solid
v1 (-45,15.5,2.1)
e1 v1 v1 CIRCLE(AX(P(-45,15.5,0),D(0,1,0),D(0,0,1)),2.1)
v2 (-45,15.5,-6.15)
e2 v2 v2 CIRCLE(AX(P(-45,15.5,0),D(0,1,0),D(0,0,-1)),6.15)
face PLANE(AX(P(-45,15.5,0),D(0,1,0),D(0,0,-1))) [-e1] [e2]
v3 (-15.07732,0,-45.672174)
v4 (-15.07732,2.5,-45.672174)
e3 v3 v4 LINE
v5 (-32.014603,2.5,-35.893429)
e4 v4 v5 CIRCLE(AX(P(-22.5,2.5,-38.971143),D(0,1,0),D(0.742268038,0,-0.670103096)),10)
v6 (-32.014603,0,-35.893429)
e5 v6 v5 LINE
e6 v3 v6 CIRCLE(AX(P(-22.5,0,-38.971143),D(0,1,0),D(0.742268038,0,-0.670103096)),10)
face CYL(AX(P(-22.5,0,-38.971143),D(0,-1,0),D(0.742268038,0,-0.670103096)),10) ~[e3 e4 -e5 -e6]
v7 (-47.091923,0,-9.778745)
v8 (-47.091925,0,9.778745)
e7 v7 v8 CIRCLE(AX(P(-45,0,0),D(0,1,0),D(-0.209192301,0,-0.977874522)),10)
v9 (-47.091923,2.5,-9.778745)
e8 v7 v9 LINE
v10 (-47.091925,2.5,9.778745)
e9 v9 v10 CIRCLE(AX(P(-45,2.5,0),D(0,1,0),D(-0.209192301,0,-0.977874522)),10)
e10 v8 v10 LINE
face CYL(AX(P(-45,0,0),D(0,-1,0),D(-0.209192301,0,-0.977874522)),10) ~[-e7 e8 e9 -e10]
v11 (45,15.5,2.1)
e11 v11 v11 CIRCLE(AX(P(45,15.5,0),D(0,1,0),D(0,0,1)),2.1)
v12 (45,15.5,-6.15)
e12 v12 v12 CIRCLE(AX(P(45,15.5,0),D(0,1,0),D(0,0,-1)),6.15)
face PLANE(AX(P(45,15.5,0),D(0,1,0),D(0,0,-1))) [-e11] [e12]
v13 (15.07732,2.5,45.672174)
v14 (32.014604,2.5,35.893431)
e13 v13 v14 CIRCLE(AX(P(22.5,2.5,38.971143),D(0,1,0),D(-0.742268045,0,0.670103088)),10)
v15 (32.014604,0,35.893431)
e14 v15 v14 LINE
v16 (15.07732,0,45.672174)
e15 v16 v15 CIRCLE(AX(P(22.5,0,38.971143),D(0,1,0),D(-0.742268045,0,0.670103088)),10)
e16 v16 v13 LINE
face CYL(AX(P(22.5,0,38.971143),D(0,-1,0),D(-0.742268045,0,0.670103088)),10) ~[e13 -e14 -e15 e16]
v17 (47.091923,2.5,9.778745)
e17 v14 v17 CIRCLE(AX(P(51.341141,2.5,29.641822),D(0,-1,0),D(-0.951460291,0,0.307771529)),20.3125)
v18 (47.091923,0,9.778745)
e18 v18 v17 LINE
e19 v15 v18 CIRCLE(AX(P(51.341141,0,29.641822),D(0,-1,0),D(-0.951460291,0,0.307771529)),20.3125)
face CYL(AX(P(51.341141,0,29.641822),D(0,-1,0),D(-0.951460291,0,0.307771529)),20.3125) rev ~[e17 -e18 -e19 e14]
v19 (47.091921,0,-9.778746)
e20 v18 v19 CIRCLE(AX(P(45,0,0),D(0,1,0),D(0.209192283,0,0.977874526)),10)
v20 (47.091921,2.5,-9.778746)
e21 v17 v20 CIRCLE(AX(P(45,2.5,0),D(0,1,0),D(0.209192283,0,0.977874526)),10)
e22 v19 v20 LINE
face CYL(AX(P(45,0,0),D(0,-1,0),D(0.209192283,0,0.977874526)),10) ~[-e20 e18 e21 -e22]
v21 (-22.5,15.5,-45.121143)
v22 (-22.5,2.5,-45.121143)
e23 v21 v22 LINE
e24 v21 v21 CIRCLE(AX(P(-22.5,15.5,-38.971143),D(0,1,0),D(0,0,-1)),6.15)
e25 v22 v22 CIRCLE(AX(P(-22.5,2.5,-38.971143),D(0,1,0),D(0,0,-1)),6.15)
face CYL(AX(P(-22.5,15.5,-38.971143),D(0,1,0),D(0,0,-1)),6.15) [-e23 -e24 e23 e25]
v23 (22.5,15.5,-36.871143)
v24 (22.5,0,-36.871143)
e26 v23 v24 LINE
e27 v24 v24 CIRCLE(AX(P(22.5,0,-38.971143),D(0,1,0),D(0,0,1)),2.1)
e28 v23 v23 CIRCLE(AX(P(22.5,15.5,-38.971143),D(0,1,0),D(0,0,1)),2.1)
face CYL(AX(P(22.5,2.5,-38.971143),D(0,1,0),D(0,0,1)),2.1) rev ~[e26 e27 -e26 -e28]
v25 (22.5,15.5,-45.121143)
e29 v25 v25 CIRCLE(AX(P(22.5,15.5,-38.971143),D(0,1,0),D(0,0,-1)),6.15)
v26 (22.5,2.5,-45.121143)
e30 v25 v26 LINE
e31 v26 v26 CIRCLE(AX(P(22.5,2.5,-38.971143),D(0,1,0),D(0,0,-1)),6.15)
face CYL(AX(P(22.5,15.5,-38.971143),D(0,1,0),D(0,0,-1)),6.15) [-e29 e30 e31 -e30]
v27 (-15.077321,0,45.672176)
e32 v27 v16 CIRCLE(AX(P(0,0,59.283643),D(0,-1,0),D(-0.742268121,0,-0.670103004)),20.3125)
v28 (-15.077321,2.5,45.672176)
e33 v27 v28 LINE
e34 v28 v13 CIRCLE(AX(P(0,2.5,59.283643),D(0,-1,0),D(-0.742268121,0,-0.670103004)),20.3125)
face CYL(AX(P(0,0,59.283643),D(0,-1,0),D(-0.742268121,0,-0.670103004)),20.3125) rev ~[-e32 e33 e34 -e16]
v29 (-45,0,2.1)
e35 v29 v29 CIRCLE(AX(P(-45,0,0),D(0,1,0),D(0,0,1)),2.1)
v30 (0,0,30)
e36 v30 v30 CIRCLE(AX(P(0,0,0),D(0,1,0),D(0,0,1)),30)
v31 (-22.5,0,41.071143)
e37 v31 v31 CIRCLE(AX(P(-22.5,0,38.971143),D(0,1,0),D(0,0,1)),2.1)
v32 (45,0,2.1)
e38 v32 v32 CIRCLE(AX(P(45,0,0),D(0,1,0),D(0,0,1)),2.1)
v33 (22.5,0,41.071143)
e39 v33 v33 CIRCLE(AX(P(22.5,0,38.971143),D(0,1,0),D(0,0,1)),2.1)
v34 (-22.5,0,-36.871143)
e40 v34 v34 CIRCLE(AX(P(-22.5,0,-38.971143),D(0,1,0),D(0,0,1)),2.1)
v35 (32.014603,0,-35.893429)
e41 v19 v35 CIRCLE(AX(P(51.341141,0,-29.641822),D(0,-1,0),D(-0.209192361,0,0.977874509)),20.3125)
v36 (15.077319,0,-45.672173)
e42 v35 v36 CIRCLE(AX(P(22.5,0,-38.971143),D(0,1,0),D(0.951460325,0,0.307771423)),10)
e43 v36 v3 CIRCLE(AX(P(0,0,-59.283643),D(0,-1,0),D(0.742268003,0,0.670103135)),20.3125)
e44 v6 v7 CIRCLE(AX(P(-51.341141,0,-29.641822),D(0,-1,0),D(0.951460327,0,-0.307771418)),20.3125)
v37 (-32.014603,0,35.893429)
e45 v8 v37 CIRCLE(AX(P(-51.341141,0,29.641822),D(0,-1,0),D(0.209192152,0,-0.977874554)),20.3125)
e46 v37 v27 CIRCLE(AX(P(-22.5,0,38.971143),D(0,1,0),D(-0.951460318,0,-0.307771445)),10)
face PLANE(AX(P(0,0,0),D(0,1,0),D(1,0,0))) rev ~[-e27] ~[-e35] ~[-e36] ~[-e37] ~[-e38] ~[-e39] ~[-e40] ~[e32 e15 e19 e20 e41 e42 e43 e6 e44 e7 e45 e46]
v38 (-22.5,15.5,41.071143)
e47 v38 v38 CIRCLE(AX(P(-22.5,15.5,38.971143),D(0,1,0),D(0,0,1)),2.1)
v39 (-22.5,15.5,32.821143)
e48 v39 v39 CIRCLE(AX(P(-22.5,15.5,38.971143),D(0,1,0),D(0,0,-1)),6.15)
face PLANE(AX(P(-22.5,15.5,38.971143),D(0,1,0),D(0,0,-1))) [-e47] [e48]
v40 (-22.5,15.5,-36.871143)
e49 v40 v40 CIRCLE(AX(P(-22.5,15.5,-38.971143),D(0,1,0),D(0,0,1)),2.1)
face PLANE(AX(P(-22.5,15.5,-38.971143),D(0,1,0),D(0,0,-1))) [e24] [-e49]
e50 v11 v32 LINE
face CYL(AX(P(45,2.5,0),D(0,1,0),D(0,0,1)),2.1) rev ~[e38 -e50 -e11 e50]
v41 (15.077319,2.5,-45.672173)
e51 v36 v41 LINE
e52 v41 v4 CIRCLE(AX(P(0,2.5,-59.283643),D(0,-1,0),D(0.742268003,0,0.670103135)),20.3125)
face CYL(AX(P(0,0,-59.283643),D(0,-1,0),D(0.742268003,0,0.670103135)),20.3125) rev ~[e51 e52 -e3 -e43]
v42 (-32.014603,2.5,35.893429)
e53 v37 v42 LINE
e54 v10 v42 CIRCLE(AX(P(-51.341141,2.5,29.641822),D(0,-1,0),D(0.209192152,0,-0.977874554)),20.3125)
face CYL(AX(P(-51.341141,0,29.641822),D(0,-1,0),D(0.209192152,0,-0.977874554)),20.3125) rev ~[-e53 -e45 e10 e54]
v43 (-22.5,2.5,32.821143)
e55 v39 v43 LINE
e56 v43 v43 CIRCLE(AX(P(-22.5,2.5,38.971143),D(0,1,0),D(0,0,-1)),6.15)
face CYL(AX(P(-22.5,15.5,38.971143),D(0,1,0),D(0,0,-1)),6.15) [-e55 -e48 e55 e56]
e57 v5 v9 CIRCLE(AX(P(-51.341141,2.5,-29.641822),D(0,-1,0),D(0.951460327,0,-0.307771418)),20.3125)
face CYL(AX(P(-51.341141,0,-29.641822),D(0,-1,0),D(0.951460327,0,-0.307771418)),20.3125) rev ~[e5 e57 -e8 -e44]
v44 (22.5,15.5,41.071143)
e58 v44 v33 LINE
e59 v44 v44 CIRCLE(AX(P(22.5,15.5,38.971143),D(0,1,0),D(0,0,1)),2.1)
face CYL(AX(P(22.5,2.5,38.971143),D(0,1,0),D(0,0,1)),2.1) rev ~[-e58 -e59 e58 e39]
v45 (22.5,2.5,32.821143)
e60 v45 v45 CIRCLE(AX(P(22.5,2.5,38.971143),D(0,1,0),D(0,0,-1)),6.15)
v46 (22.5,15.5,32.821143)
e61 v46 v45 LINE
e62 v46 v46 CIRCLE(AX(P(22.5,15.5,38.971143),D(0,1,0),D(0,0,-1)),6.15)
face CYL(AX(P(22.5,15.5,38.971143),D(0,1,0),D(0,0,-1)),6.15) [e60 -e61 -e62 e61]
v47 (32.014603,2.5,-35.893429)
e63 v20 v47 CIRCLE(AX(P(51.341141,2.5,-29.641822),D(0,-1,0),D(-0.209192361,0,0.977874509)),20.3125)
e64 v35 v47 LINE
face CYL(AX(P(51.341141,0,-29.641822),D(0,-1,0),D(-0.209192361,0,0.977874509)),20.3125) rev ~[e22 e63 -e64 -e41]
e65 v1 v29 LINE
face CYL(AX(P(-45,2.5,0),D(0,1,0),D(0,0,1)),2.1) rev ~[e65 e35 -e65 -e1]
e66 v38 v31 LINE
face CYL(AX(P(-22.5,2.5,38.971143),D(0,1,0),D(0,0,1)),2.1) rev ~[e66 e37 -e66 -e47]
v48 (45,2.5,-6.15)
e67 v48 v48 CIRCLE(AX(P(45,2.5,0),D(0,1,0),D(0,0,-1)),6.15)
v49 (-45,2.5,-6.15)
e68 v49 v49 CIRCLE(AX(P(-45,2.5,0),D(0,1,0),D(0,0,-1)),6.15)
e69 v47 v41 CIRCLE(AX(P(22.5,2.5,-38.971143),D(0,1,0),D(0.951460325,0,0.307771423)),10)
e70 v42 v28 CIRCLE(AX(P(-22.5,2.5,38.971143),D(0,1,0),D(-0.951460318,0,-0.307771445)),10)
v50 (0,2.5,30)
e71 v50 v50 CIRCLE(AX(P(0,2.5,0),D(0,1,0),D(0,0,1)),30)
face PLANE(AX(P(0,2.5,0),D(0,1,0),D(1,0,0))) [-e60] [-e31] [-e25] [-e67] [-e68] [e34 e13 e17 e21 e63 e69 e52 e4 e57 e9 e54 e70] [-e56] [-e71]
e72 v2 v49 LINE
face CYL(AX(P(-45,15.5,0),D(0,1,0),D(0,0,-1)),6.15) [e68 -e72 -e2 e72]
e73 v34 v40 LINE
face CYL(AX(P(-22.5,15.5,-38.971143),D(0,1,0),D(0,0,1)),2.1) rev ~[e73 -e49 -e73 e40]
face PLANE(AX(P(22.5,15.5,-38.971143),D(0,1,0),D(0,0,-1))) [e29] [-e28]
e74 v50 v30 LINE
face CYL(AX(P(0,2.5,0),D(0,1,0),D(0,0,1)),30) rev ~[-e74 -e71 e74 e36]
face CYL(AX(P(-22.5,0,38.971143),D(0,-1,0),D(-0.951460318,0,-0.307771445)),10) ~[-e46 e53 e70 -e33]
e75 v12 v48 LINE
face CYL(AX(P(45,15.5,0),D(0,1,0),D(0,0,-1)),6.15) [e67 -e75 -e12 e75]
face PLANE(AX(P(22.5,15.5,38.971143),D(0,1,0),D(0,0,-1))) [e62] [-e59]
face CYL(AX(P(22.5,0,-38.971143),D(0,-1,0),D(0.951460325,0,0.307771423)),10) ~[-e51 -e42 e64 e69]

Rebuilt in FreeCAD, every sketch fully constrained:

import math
import FreeCAD as App
import Part
import Sketcher

V = App.Vector
Q = App.Units.Quantity

doc = App.newDocument("Part")
body = doc.addObject("PartDesign::Body", "Body")

# Sketch on XZ plane
sketch1 = body.newObject("Sketcher::SketchObject", "Sketch")
sketch1.AttachmentSupport = (doc.getObject("XZ_Plane"), [""])
sketch1.MapMode = "FlatFace"
sketch1.addGeometry(Part.ArcOfCircle(Part.Circle(V(51, 30, 0), V(0, 0, 1), 20), math.radians(162), math.radians(258)), False)
sketch1.addGeometry(Part.ArcOfCircle(Part.Circle(V(45, 0, 0), V(0, 0, 1), 10), math.radians(-78), math.radians(78)), False)
sketch1.addGeometry(Part.ArcOfCircle(Part.Circle(V(51, -30, 0), V(0, 0, 1), 20), math.radians(102), math.radians(198)), False)
sketch1.addGeometry(Part.ArcOfCircle(Part.Circle(V(22, -39, 0), V(0, 0, 1), 10), math.radians(-138), math.radians(18)), False)
sketch1.addGeometry(Part.ArcOfCircle(Part.Circle(V(0, -59, 0), V(0, 0, 1), 20), math.radians(42), math.radians(138)), False)
sketch1.addGeometry(Part.ArcOfCircle(Part.Circle(V(-22, -39, 0), V(0, 0, 1), 10), math.radians(162), math.radians(318)), False)
sketch1.addGeometry(Part.ArcOfCircle(Part.Circle(V(-51, -30, 0), V(0, 0, 1), 20), math.radians(-18), math.radians(78)), False)
sketch1.addGeometry(Part.ArcOfCircle(Part.Circle(V(-45, 0, 0), V(0, 0, 1), 10), math.radians(102), math.radians(258)), False)
sketch1.addGeometry(Part.ArcOfCircle(Part.Circle(V(-51, 30, 0), V(0, 0, 1), 20), math.radians(-78), math.radians(18)), False)
sketch1.addGeometry(Part.ArcOfCircle(Part.Circle(V(-22, 39, 0), V(0, 0, 1), 10), math.radians(42), math.radians(198)), False)
sketch1.addGeometry(Part.ArcOfCircle(Part.Circle(V(0, 59, 0), V(0, 0, 1), 20), math.radians(-138), math.radians(-42)), False)
sketch1.addGeometry(Part.ArcOfCircle(Part.Circle(V(22, 39, 0), V(0, 0, 1), 10), math.radians(-18), math.radians(138)), False)
sketch1.addConstraint(Sketcher.Constraint("Tangent", 0, 2, 1, 2))
sketch1.addConstraint(Sketcher.Constraint("Tangent", 1, 1, 2, 1))
sketch1.addConstraint(Sketcher.Constraint("Tangent", 2, 2, 3, 2))
sketch1.addConstraint(Sketcher.Constraint("Tangent", 3, 1, 4, 1))
sketch1.addConstraint(Sketcher.Constraint("Tangent", 4, 2, 5, 2))
sketch1.addConstraint(Sketcher.Constraint("Tangent", 5, 1, 6, 1))
sketch1.addConstraint(Sketcher.Constraint("Tangent", 6, 2, 7, 2))
sketch1.addConstraint(Sketcher.Constraint("Tangent", 7, 1, 8, 1))
sketch1.addConstraint(Sketcher.Constraint("Tangent", 8, 2, 9, 2))
sketch1.addConstraint(Sketcher.Constraint("Tangent", 9, 1, 10, 1))
sketch1.addConstraint(Sketcher.Constraint("Tangent", 10, 2, 11, 2))
sketch1.addConstraint(Sketcher.Constraint("Tangent", 11, 1, 0, 1))
sketch1.addConstraint(Sketcher.Constraint("Equal", 0, 2))
sketch1.addConstraint(Sketcher.Constraint("Equal", 1, 3))
sketch1.addConstraint(Sketcher.Constraint("Equal", 2, 4))
sketch1.addConstraint(Sketcher.Constraint("Equal", 3, 5))
sketch1.addConstraint(Sketcher.Constraint("Equal", 4, 6))
sketch1.addConstraint(Sketcher.Constraint("Equal", 5, 7))
sketch1.addConstraint(Sketcher.Constraint("Equal", 6, 8))
sketch1.addConstraint(Sketcher.Constraint("Equal", 7, 9))
sketch1.addConstraint(Sketcher.Constraint("Equal", 8, 10))
sketch1.addConstraint(Sketcher.Constraint("Equal", 9, 11))
sketch1.addConstraint(Sketcher.Constraint("Symmetric", 0, 3, 6, 3, -1, 1))
sketch1.addConstraint(Sketcher.Constraint("Symmetric", 2, 3, 8, 3, -1, 1))
sketch1.addConstraint(Sketcher.Constraint("Symmetric", 4, 3, 10, 3, -1, 1))
sketch1.addConstraint(Sketcher.Constraint("Symmetric", 3, 3, 5, 3, -2))
sketch1.addConstraint(Sketcher.Constraint("PointOnObject", 1, 3, -1))
sketch1.addConstraint(Sketcher.Constraint("Radius", 1, Q("10 mm")))
sketch1.addConstraint(Sketcher.Constraint("DistanceX", -1, 1, 1, 3, Q("45 mm")))
sketch1.addConstraint(Sketcher.Constraint("DistanceX", 5, 3, 3, 3, Q("45 mm")))
sketch1.addConstraint(Sketcher.Constraint("Radius", 0, Q("20.3125 mm")))
sketch1.addConstraint(Sketcher.Constraint("DistanceY", 7, 1, 9, 3, Q("29.192398 mm")))
pad1 = body.newObject("PartDesign::Pad", "Pad")
pad1.Profile = sketch1
pad1.Length = 2.5
pad1.Reversed = True

# Sketch on XZ plane
sketch2 = body.newObject("Sketcher::SketchObject", "Sketch001")
sketch2.AttachmentSupport = (doc.getObject("XZ_Plane"), [""])
sketch2.MapMode = "FlatFace"
sketch2.AttachmentOffset = App.Placement(V(0, 0, -2.5), App.Rotation())
sketch2.addGeometry(Part.Circle(V(-22.5, -39, 0), V(0, 0, 1), 2.1), False)
sketch2.addGeometry(Part.Circle(V(22.5, -39, 0), V(0, 0, 1), 2.1), False)
sketch2.addGeometry(Part.Circle(V(45, 0, 0), V(0, 0, 1), 2.1), False)
sketch2.addGeometry(Part.Circle(V(22.5, 39, 0), V(0, 0, 1), 2.1), False)
sketch2.addGeometry(Part.Circle(V(-22.5, 39, 0), V(0, 0, 1), 2.1), False)
sketch2.addGeometry(Part.Circle(V(-45, 0, 0), V(0, 0, 1), 2.1), False)
sketch2.addGeometry(Part.Circle(V(0, 0, 0), V(0, 0, 1), 30), False)
sketch2.addConstraint(Sketcher.Constraint("Coincident", 6, 3, -1, 1))
sketch2.addConstraint(Sketcher.Constraint("Equal", 0, 1))
sketch2.addConstraint(Sketcher.Constraint("Equal", 1, 2))
sketch2.addConstraint(Sketcher.Constraint("Equal", 2, 3))
sketch2.addConstraint(Sketcher.Constraint("Equal", 3, 4))
sketch2.addConstraint(Sketcher.Constraint("Equal", 4, 5))
sketch2.addConstraint(Sketcher.Constraint("Symmetric", 0, 3, 3, 3, -1, 1))
sketch2.addConstraint(Sketcher.Constraint("Symmetric", 1, 3, 4, 3, -1, 1))
sketch2.addConstraint(Sketcher.Constraint("Symmetric", 2, 3, 5, 3, -1, 1))
sketch2.addConstraint(Sketcher.Constraint("Symmetric", 0, 3, 1, 3, -2))
sketch2.addConstraint(Sketcher.Constraint("PointOnObject", 2, 3, -1))
sketch2.addConstraint(Sketcher.Constraint("Diameter", 6, Q("60 mm")))
sketch2.addConstraint(Sketcher.Constraint("Diameter", 0, Q("4.2 mm")))
sketch2.addConstraint(Sketcher.Constraint("DistanceX", -1, 1, 2, 3, Q("45 mm")))
sketch2.addConstraint(Sketcher.Constraint("DistanceX", 0, 3, 1, 3, Q("45 mm")))
sketch2.addConstraint(Sketcher.Constraint("DistanceY", 0, 3, -1, 1, Q("38.971143 mm")))
pocket1 = body.newObject("PartDesign::Pocket", "Pocket")
pocket1.Profile = sketch2
pocket1.Length = 2.5
pocket1.Reversed = True

# Sketch on XZ plane
sketch3 = body.newObject("Sketcher::SketchObject", "Sketch002")
sketch3.AttachmentSupport = (doc.getObject("XZ_Plane"), [""])
sketch3.MapMode = "FlatFace"
sketch3.AttachmentOffset = App.Placement(V(0, 0, -15.5), App.Rotation())
sketch3.addGeometry(Part.Circle(V(-22.5, -39, 0), V(0, 0, 1), 6.2), False)
sketch3.addGeometry(Part.Circle(V(-22.5, -39, 0), V(0, 0, 1), 2.1), False)
sketch3.addGeometry(Part.Circle(V(22.5, -39, 0), V(0, 0, 1), 6.2), False)
sketch3.addGeometry(Part.Circle(V(22.5, -39, 0), V(0, 0, 1), 2.1), False)
sketch3.addGeometry(Part.Circle(V(45, 0, 0), V(0, 0, 1), 6.2), False)
sketch3.addGeometry(Part.Circle(V(45, 0, 0), V(0, 0, 1), 2.1), False)
sketch3.addGeometry(Part.Circle(V(22.5, 39, 0), V(0, 0, 1), 6.2), False)
sketch3.addGeometry(Part.Circle(V(22.5, 39, 0), V(0, 0, 1), 2.1), False)
sketch3.addGeometry(Part.Circle(V(-22.5, 39, 0), V(0, 0, 1), 6.2), False)
sketch3.addGeometry(Part.Circle(V(-22.5, 39, 0), V(0, 0, 1), 2.1), False)
sketch3.addGeometry(Part.Circle(V(-45, 0, 0), V(0, 0, 1), 6.2), False)
sketch3.addGeometry(Part.Circle(V(-45, 0, 0), V(0, 0, 1), 2.1), False)
sketch3.addConstraint(Sketcher.Constraint("Coincident", 1, 3, 0, 3))
sketch3.addConstraint(Sketcher.Constraint("Coincident", 3, 3, 2, 3))
sketch3.addConstraint(Sketcher.Constraint("Coincident", 5, 3, 4, 3))
sketch3.addConstraint(Sketcher.Constraint("Coincident", 7, 3, 6, 3))
sketch3.addConstraint(Sketcher.Constraint("Coincident", 9, 3, 8, 3))
sketch3.addConstraint(Sketcher.Constraint("Coincident", 11, 3, 10, 3))
sketch3.addConstraint(Sketcher.Constraint("Equal", 0, 2))
sketch3.addConstraint(Sketcher.Constraint("Equal", 1, 3))
sketch3.addConstraint(Sketcher.Constraint("Equal", 2, 4))
sketch3.addConstraint(Sketcher.Constraint("Equal", 3, 5))
sketch3.addConstraint(Sketcher.Constraint("Equal", 4, 6))
sketch3.addConstraint(Sketcher.Constraint("Equal", 5, 7))
sketch3.addConstraint(Sketcher.Constraint("Equal", 6, 8))
sketch3.addConstraint(Sketcher.Constraint("Equal", 7, 9))
sketch3.addConstraint(Sketcher.Constraint("Equal", 8, 10))
sketch3.addConstraint(Sketcher.Constraint("Equal", 9, 11))
sketch3.addConstraint(Sketcher.Constraint("Symmetric", 0, 3, 6, 3, -1, 1))
sketch3.addConstraint(Sketcher.Constraint("Symmetric", 2, 3, 8, 3, -1, 1))
sketch3.addConstraint(Sketcher.Constraint("Symmetric", 4, 3, 10, 3, -1, 1))
sketch3.addConstraint(Sketcher.Constraint("Symmetric", 0, 3, 2, 3, -2))
sketch3.addConstraint(Sketcher.Constraint("PointOnObject", 4, 3, -1))
sketch3.addConstraint(Sketcher.Constraint("Diameter", 0, Q("12.3 mm")))
sketch3.addConstraint(Sketcher.Constraint("Diameter", 1, Q("4.2 mm")))
sketch3.addConstraint(Sketcher.Constraint("DistanceX", -1, 1, 4, 3, Q("45 mm")))
sketch3.addConstraint(Sketcher.Constraint("DistanceX", 0, 3, 2, 3, Q("45 mm")))
sketch3.addConstraint(Sketcher.Constraint("DistanceY", 0, 3, -1, 1, Q("38.971143 mm")))
pad2 = body.newObject("PartDesign::Pad", "Pad001")
pad2.Profile = sketch3
pad2.Length = 13

doc.recompute()
